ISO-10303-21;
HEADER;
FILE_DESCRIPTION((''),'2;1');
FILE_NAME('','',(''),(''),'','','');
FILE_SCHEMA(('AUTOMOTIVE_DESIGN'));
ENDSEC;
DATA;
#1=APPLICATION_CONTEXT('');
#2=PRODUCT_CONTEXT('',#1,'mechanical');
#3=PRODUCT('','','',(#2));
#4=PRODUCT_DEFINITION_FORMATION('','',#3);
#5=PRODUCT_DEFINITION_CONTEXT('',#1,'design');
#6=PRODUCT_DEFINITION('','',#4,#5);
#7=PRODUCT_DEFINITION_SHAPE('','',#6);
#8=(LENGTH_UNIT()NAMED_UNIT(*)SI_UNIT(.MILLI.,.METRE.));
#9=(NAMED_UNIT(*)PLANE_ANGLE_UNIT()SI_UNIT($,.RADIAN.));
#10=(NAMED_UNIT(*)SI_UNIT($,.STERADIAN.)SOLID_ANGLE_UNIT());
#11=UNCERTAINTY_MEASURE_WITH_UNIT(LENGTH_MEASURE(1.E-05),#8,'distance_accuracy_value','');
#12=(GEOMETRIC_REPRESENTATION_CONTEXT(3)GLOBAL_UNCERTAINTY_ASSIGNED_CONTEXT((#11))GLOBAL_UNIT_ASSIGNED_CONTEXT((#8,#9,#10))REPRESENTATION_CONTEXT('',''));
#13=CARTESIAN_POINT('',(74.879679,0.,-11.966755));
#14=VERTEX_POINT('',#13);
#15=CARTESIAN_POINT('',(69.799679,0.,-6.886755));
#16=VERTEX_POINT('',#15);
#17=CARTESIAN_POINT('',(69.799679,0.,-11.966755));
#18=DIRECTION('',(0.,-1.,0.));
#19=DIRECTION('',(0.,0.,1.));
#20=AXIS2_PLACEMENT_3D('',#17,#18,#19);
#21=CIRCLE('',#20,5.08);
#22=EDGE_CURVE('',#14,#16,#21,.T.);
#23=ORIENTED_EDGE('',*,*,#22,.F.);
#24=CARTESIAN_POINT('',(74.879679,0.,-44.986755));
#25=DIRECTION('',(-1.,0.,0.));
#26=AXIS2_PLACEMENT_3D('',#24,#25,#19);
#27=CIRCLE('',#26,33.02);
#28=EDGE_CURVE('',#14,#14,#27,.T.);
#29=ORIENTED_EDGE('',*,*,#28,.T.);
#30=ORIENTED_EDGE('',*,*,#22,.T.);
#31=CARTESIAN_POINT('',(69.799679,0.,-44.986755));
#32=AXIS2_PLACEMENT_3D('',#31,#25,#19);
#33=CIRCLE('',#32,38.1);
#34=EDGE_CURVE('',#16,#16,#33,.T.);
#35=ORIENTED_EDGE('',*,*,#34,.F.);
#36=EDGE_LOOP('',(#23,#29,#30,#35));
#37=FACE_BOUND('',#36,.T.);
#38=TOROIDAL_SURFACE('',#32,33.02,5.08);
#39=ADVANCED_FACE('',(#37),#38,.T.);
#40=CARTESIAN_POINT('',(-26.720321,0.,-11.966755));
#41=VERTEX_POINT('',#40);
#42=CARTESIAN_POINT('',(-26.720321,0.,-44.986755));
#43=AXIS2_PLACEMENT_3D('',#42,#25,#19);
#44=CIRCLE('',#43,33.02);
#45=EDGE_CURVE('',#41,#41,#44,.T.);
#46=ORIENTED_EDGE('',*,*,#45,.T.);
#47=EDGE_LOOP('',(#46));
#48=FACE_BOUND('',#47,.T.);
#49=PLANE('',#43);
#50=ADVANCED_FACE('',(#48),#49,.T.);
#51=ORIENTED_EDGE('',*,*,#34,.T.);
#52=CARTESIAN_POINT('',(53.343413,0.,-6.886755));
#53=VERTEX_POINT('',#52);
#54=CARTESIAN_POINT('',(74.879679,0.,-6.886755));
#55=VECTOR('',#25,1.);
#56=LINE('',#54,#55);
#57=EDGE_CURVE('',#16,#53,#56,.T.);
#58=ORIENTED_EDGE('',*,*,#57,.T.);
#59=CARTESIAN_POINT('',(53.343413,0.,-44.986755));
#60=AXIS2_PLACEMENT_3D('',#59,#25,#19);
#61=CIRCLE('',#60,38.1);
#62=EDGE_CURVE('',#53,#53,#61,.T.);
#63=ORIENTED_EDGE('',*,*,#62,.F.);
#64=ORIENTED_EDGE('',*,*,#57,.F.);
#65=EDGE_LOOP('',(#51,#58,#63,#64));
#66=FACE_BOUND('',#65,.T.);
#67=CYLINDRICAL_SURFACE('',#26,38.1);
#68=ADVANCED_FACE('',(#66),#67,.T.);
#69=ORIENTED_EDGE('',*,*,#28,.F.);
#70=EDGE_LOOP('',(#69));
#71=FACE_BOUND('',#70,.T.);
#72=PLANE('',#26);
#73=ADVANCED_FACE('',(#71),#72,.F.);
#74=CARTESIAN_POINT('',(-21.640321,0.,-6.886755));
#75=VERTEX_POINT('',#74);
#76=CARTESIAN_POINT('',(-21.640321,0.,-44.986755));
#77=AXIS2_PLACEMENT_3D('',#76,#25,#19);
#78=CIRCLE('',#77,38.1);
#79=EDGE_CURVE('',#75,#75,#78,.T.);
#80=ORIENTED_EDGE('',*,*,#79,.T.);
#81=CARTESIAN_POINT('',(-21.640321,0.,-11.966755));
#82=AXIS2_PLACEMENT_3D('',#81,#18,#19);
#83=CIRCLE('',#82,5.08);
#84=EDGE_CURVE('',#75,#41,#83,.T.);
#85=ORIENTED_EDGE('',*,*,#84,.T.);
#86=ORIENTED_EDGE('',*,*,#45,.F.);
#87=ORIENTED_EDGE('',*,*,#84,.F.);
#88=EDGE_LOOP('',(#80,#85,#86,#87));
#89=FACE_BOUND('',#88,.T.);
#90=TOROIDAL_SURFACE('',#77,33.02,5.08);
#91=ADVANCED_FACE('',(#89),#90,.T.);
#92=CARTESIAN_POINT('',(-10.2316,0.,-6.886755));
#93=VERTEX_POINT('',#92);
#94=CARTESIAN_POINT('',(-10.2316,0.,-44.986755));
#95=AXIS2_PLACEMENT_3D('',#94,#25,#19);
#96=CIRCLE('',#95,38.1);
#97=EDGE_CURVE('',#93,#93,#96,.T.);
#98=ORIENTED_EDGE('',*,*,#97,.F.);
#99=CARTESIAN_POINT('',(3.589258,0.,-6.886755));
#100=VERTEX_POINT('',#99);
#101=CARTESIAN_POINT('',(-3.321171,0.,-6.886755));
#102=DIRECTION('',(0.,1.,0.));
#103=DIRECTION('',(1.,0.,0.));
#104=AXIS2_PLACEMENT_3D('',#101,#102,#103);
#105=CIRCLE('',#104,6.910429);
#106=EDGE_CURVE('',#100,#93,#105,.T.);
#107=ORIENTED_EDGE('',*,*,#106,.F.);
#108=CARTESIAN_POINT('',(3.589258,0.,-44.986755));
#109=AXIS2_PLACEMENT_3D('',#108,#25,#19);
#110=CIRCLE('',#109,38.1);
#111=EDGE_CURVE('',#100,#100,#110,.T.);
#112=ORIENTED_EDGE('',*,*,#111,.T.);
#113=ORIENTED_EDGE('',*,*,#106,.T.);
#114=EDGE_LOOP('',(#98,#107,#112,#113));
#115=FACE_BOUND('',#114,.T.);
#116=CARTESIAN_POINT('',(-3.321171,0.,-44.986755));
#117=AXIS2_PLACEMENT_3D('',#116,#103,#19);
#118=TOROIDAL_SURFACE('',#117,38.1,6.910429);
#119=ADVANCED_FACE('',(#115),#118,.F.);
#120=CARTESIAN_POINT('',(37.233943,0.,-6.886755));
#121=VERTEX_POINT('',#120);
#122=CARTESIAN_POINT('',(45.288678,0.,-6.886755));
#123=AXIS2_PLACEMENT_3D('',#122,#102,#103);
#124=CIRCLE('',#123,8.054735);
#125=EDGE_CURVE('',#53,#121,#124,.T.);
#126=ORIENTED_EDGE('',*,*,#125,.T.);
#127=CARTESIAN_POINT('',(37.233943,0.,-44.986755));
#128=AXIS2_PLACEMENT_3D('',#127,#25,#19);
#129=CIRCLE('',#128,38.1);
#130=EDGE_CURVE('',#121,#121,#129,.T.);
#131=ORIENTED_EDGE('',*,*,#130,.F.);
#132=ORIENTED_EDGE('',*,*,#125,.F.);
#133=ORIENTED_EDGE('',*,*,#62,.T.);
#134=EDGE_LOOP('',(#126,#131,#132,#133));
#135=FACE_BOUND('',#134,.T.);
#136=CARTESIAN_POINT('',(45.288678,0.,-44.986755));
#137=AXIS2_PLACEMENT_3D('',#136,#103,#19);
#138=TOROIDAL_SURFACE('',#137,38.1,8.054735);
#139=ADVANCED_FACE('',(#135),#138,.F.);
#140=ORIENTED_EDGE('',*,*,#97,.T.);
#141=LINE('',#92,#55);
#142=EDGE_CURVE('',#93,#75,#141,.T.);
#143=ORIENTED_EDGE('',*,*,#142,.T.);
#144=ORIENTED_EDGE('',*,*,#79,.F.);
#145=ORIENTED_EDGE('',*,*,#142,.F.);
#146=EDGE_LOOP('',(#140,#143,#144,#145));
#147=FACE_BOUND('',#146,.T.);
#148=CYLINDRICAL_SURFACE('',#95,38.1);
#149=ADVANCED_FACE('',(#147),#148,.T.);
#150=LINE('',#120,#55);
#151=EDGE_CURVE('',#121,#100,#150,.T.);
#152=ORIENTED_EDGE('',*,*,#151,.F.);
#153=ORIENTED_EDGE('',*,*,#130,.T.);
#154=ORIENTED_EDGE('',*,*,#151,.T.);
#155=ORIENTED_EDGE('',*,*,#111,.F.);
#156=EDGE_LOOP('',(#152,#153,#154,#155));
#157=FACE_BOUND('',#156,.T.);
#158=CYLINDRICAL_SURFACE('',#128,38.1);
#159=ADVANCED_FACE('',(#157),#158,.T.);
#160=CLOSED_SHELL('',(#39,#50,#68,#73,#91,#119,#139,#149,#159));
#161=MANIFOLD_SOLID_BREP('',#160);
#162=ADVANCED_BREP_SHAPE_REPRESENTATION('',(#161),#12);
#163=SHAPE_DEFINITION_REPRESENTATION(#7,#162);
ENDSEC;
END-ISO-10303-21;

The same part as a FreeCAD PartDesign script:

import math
import FreeCAD as App
import Part
import Sketcher
Q = App.Units.Quantity


def edges_at(feature, points):
    """Names of the edges that pass closest to the given points."""
    edges = feature.Shape.Edges
    near = lambda p: min(range(len(edges)), key=lambda i: edges[i].distToShape(Part.Vertex(*p))[0])
    return sorted({f"Edge{near(p) + 1}" for p in points})

doc = App.newDocument("Part")
body = doc.addObject("PartDesign::Body", "Body")

# Sketch on XZ plane
sketch1 = body.newObject("Sketcher::SketchObject", "Sketch")
sketch1.AttachmentSupport = (doc.getObject("XZ_Plane"), [""])
sketch1.MapMode = "FlatFace"
sketch1.addGeometry(Part.LineSegment(App.Vector(75, -45, 0), App.Vector(75, -7, 0)), False)
sketch1.addGeometry(Part.LineSegment(App.Vector(75, -7, 0), App.Vector(53, -7, 0)), False)
sketch1.addGeometry(Part.ArcOfCircle(Part.Circle(App.Vector(45, -7, 0), App.Vector(0, 0, 1), 8), math.radians(180), math.radians(360)), False)
sketch1.addGeometry(Part.LineSegment(App.Vector(37, -7, 0), App.Vector(4, -7, 0)), False)
sketch1.addGeometry(Part.ArcOfCircle(Part.Circle(App.Vector(-3, -7, 0), App.Vector(0, 0, 1), 7), math.radians(180), math.radians(360)), False)
sketch1.addGeometry(Part.LineSegment(App.Vector(-10, -7, 0), App.Vector(-27, -7, 0)), False)
sketch1.addGeometry(Part.LineSegment(App.Vector(-27, -7, 0), App.Vector(-27, -45, 0)), False)
sketch1.addGeometry(Part.LineSegment(App.Vector(-27, -45, 0), App.Vector(75, -45, 0)), False)
sketch1.addGeometry(Part.LineSegment(App.Vector(75, -45, 0), App.Vector(-27, -45, 0)), True)  # axis
sketch1.addConstraint(Sketcher.Constraint("Coincident", 0, 2, 1, 1))
sketch1.addConstraint(Sketcher.Constraint("Coincident", 1, 2, 2, 2))
sketch1.addConstraint(Sketcher.Constraint("Coincident", 2, 1, 3, 1))
sketch1.addConstraint(Sketcher.Constraint("Coincident", 3, 2, 4, 2))
sketch1.addConstraint(Sketcher.Constraint("Coincident", 4, 1, 5, 1))
sketch1.addConstraint(Sketcher.Constraint("Coincident", 5, 2, 6, 1))
sketch1.addConstraint(Sketcher.Constraint("Coincident", 6, 2, 7, 1))
sketch1.addConstraint(Sketcher.Constraint("Coincident", 7, 2, 0, 1))
sketch1.addConstraint(Sketcher.Constraint("Vertical", 0))
sketch1.addConstraint(Sketcher.Constraint("Horizontal", 1))
sketch1.addConstraint(Sketcher.Constraint("Horizontal", 3))
sketch1.addConstraint(Sketcher.Constraint("Horizontal", 5))
sketch1.addConstraint(Sketcher.Constraint("Vertical", 6))
sketch1.addConstraint(Sketcher.Constraint("Horizontal", 7))
sketch1.addConstraint(Sketcher.Constraint("Horizontal", 8))
sketch1.addConstraint(Sketcher.Constraint("Coincident", 8, 1, 7, 2))
sketch1.addConstraint(Sketcher.Constraint("Horizontal", 2, 3, 4, 3))
sketch1.addConstraint(Sketcher.Constraint("Horizontal", 4, 3, 0, 2))
sketch1.addConstraint(Sketcher.Constraint("Horizontal", 1, 2, 2, 1))
sketch1.addConstraint(Sketcher.Constraint("Horizontal", 3, 2, 4, 1))
sketch1.addConstraint(Sketcher.Constraint("Vertical", 5, 2, 8, 2))
sketch1.addConstraint(Sketcher.Constraint("DistanceX", 7, 1, 7, 2, Q("4 in")))
sketch1.addConstraint(Sketcher.Constraint("DistanceY", 0, 1, 0, 2, Q("1.5 in")))
sketch1.addConstraint(Sketcher.Constraint("Radius", 4, 6.910429))
sketch1.addConstraint(Sketcher.Constraint("DistanceX", 2, 3, 0, 2, Q("1.165 in")))
sketch1.addConstraint(Sketcher.Constraint("Radius", 2, 8.054735))
sketch1.addConstraint(Sketcher.Constraint("DistanceX", 5, 2, 5, 1, 16.488721))
sketch1.addConstraint(Sketcher.Constraint("DistanceX", 4, 1, -1, 1, 10.2316))
sketch1.addConstraint(Sketcher.Constraint("DistanceY", 2, 3, -1, 1, 6.886755))
revolution = body.newObject("PartDesign::Revolution", "Revolution")
revolution.Profile = sketch1
revolution.ReferenceAxis = (sketch1, ["Axis0"])
revolution.Angle = 360
doc.recompute()

fillet = body.newObject("PartDesign::Fillet", "Fillet")
fillet.Base = (revolution, edges_at(revolution, [(-26.72, 0, -83.087), (74.88, 0, -83.087)]))
fillet.Radius = Q("0.2 in")

doc.recompute()
